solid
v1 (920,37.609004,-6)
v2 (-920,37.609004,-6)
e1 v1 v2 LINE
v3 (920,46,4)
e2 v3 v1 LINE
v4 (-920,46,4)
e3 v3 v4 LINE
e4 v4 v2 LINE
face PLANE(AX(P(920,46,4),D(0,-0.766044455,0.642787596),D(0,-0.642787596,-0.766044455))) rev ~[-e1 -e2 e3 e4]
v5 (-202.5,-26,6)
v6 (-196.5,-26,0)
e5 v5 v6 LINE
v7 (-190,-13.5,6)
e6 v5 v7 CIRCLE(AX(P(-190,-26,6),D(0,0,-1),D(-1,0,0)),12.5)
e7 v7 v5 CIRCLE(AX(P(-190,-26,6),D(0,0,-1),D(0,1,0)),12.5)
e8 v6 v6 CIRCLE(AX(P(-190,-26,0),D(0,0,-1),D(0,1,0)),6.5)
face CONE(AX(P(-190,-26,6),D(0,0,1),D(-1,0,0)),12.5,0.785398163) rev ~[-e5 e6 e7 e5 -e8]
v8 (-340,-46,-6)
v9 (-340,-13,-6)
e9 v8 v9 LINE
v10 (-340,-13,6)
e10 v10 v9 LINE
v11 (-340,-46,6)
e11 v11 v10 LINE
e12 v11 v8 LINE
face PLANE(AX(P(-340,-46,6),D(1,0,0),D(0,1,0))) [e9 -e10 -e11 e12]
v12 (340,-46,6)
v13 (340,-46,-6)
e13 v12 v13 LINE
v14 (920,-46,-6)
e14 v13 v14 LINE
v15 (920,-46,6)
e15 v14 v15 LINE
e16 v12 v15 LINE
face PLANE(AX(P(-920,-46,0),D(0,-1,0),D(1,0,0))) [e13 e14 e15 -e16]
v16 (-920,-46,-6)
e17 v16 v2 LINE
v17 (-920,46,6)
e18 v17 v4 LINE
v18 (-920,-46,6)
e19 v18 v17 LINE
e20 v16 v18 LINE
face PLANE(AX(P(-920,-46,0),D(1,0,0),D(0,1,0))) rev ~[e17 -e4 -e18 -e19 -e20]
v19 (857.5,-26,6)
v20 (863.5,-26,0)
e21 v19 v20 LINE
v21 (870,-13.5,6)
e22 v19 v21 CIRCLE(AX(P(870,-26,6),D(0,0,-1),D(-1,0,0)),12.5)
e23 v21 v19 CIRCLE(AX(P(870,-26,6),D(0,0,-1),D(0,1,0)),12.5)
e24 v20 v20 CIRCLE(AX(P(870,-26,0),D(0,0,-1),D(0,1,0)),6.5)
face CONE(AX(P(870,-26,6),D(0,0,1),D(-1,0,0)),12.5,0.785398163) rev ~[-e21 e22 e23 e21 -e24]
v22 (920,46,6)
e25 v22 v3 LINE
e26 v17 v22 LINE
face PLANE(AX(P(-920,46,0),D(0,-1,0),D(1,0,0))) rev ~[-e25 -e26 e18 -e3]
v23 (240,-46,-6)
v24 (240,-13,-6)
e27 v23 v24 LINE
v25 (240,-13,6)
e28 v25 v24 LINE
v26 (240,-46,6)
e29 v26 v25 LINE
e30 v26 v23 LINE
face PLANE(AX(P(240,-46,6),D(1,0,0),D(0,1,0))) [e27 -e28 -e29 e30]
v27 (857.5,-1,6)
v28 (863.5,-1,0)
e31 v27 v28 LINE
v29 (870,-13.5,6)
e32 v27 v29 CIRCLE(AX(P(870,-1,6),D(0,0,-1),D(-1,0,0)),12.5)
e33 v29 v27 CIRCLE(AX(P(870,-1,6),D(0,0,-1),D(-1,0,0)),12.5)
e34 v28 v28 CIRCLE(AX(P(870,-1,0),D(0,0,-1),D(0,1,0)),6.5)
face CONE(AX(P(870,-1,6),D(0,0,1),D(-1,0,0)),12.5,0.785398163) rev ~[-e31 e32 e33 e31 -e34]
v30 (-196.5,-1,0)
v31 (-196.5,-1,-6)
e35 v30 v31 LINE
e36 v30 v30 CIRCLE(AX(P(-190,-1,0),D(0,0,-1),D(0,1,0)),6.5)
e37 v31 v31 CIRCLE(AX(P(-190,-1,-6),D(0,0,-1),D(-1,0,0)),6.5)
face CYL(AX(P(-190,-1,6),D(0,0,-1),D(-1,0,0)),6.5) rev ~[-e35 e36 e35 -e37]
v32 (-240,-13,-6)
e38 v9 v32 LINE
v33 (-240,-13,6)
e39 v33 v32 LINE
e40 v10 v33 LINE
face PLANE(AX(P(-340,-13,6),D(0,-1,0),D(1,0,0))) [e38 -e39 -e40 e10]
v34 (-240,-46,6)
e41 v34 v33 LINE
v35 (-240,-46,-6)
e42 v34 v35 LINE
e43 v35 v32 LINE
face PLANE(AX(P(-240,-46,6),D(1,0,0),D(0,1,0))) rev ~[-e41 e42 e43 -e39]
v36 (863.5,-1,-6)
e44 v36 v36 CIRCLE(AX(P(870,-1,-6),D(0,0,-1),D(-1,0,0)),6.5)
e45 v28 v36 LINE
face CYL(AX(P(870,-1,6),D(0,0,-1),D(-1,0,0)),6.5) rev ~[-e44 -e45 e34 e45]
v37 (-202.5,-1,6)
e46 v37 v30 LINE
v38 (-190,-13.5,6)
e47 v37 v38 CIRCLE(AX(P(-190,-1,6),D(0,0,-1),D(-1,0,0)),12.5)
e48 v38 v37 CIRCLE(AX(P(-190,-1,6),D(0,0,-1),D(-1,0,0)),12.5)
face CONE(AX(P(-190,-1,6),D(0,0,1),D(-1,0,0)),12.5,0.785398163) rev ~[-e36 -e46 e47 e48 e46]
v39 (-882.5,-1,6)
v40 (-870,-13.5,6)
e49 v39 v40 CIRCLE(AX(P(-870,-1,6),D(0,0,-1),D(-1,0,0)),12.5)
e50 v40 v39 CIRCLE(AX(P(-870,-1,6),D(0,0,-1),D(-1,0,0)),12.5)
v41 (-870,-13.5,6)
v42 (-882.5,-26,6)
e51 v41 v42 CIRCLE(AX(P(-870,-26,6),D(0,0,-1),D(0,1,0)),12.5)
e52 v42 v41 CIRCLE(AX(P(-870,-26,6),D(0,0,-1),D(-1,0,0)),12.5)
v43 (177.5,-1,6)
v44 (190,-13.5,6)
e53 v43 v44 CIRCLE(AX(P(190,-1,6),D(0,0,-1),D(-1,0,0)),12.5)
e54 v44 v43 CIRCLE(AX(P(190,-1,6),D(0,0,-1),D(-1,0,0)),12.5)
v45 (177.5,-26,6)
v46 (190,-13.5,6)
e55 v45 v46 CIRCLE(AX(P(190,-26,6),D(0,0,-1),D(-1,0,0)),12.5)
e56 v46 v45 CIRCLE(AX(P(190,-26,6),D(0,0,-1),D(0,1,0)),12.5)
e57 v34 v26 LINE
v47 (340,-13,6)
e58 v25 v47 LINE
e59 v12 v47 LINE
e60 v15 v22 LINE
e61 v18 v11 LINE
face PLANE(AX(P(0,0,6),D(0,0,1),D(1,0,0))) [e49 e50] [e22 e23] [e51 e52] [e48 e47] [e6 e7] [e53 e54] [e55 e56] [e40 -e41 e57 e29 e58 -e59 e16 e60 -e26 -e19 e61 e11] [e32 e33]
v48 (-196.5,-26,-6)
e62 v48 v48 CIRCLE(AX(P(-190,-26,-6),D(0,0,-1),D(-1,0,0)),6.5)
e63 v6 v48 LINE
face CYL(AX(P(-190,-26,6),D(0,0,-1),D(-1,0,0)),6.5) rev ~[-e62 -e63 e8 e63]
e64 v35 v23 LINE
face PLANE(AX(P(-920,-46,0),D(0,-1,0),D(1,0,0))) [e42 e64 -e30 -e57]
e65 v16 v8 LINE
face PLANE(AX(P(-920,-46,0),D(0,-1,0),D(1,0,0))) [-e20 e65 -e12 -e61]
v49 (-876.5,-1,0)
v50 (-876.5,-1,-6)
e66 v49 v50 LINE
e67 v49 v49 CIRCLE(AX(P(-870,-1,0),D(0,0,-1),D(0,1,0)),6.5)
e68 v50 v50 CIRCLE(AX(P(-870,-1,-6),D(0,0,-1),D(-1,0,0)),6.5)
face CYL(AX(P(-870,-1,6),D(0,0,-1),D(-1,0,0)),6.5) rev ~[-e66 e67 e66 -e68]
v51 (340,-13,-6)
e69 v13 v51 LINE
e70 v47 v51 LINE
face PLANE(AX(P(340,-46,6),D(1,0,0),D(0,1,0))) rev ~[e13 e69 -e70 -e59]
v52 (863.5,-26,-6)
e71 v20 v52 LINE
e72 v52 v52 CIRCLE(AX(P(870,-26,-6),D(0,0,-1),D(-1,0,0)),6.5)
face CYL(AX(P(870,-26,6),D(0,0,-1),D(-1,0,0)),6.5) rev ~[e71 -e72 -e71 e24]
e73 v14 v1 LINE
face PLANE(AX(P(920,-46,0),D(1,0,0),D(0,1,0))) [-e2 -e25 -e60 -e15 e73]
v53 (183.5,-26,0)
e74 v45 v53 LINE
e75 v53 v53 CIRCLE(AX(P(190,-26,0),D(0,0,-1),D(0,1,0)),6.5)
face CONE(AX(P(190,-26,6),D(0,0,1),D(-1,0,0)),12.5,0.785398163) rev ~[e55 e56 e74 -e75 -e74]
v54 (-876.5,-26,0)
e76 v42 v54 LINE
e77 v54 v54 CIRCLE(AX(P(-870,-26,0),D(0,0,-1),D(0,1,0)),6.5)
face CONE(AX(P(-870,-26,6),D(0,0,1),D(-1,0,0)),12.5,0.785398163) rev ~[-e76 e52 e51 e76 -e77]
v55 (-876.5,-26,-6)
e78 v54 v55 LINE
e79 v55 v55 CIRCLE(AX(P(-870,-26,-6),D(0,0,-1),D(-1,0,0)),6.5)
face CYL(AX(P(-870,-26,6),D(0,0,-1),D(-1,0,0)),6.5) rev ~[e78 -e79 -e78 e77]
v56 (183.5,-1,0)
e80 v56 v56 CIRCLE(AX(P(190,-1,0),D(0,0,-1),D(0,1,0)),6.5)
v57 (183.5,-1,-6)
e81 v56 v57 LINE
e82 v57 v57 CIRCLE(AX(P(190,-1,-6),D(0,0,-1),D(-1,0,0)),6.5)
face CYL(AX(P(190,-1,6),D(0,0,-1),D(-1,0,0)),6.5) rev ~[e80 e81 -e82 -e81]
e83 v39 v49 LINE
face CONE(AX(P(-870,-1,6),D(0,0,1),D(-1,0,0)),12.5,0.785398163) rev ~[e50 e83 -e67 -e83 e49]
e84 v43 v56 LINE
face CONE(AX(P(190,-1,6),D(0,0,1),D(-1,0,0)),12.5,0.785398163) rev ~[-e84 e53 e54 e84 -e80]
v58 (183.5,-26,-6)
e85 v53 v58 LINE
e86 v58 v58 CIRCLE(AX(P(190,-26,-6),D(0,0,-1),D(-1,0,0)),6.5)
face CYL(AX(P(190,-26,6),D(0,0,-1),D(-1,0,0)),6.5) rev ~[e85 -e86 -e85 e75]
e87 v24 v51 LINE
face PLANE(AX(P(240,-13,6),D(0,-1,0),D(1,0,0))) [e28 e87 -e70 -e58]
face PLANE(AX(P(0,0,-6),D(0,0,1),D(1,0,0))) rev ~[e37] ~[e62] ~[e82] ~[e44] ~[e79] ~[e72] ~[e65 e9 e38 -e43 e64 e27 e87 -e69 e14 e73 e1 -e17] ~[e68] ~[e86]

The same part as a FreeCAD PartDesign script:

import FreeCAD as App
import Part
import Sketcher

V = App.Vector
Q = App.Units.Quantity

doc = App.newDocument("Part")
body = doc.addObject("PartDesign::Body", "Body")

sketch1 = body.newObject("Sketcher::SketchObject", "Sketch")
sketch1.AttachmentSupport = (doc.getObject("XY_Plane"), [""])
sketch1.MapMode = "FlatFace"
sketch1.addGeometry([
    Part.LineSegment(V(-920, 46, 0), V(-920, -46, 0)),
    Part.LineSegment(V(-920, -46, 0), V(920, -46, 0)),
    Part.LineSegment(V(920, -46, 0), V(920, 46, 0)),
    Part.LineSegment(V(920, 46, 0), V(-920, 46, 0)),
], False)
sketch1.addConstraint([
    Sketcher.Constraint("Coincident", 0, 2, 1, 1),
    Sketcher.Constraint("Coincident", 1, 2, 2, 1),
    Sketcher.Constraint("Coincident", 2, 2, 3, 1),
    Sketcher.Constraint("Coincident", 3, 2, 0, 1),
    Sketcher.Constraint("Vertical", 0),
    Sketcher.Constraint("Horizontal", 1),
    Sketcher.Constraint("Vertical", 2),
    Sketcher.Constraint("Horizontal", 3),
    Sketcher.Constraint("Symmetric", 0, 2, 2, 2, -1, 1),
    Sketcher.Constraint("DistanceX", 1, 1, 1, 2, Q("1840 mm")),
    Sketcher.Constraint("DistanceY", 0, 2, 0, 1, Q("92 mm")),
])
pad1 = body.newObject("PartDesign::Pad", "Pad")
pad1.Profile = sketch1
pad1.Length = 12
pad1.Midplane = True

sketch2 = body.newObject("Sketcher::SketchObject", "Sketch001")
sketch2.AttachmentSupport = (doc.getObject("XY_Plane"), [""])
sketch2.MapMode = "FlatFace"
sketch2.AttachmentOffset = App.Placement(V(0, 0, 6), App.Rotation())
sketch2.addGeometry([
    Part.LineSegment(V(-340, -13, 0), V(-340, -46, 0)),
    Part.LineSegment(V(-340, -46, 0), V(-240, -46, 0)),
    Part.LineSegment(V(-240, -46, 0), V(-240, -13, 0)),
    Part.LineSegment(V(-240, -13, 0), V(-340, -13, 0)),
    Part.LineSegment(V(240, -13, 0), V(240, -46, 0)),
    Part.LineSegment(V(240, -46, 0), V(340, -46, 0)),
    Part.LineSegment(V(340, -46, 0), V(340, -13, 0)),
    Part.LineSegment(V(340, -13, 0), V(240, -13, 0)),
], False)
sketch2.addConstraint([
    Sketcher.Constraint("Coincident", 0, 2, 1, 1),
    Sketcher.Constraint("Coincident", 1, 2, 2, 1),
    Sketcher.Constraint("Coincident", 2, 2, 3, 1),
    Sketcher.Constraint("Coincident", 3, 2, 0, 1),
    Sketcher.Constraint("Coincident", 4, 2, 5, 1),
    Sketcher.Constraint("Coincident", 5, 2, 6, 1),
    Sketcher.Constraint("Coincident", 6, 2, 7, 1),
    Sketcher.Constraint("Coincident", 7, 2, 4, 1),
    Sketcher.Constraint("Vertical", 0),
    Sketcher.Constraint("Horizontal", 1),
    Sketcher.Constraint("Vertical", 2),
    Sketcher.Constraint("Horizontal", 3),
    Sketcher.Constraint("Vertical", 4),
    Sketcher.Constraint("Horizontal", 5),
    Sketcher.Constraint("Vertical", 6),
    Sketcher.Constraint("Horizontal", 7),
    Sketcher.Constraint("Symmetric", 1, 2, 4, 2, -2),
    Sketcher.Constraint("Symmetric", 3, 2, 6, 2, -2),
    Sketcher.Constraint("DistanceX", 1, 1, 1, 2, Q("100 mm")),
    Sketcher.Constraint("DistanceY", 0, 2, 0, 1, Q("33 mm")),
    Sketcher.Constraint("DistanceX", 0, 2, -1, 1, Q("340 mm")),
    Sketcher.Constraint("DistanceY", 0, 2, -1, 1, Q("46 mm")),
])
pocket1 = body.newObject("PartDesign::Pocket", "Pocket")
pocket1.Profile = sketch2
pocket1.Type = "ThroughAll"

sketch3 = body.newObject("Sketcher::SketchObject", "Sketch002")
sketch3.AttachmentSupport = (doc.getObject("YZ_Plane"), [""])
sketch3.MapMode = "FlatFace"
sketch3.AttachmentOffset = App.Placement(V(0, 0, 920), App.Rotation())
sketch3.addGeometry([
    Part.LineSegment(V(46, -6, 0), V(46, 4, 0)),
    Part.LineSegment(V(46, 4, 0), V(38, -6, 0)),
    Part.LineSegment(V(38, -6, 0), V(46, -6, 0)),
], False)
sketch3.addConstraint([
    Sketcher.Constraint("Coincident", 0, 2, 1, 1),
    Sketcher.Constraint("Coincident", 1, 2, 2, 1),
    Sketcher.Constraint("Coincident", 2, 2, 0, 1),
    Sketcher.Constraint("Vertical", 0),
    Sketcher.Constraint("Horizontal", 2),
    Sketcher.Constraint("DistanceY", 0, 1, 0, 2, Q("10 mm")),
    Sketcher.Constraint("Angle", 1, Q("-129.999999 deg")),
    Sketcher.Constraint("DistanceX", -1, 1, 0, 2, Q("46 mm")),
    Sketcher.Constraint("DistanceY", -1, 1, 0, 2, Q("4 mm")),
])
pocket2 = body.newObject("PartDesign::Pocket", "Pocket001")
pocket2.Profile = sketch3
pocket2.Type = "ThroughAll"

sketch4 = body.newObject("Sketcher::SketchObject", "Sketch003")
sketch4.AttachmentSupport = (doc.getObject("XY_Plane"), [""])
sketch4.MapMode = "FlatFace"
sketch4.AttachmentOffset = App.Placement(V(0, 0, 6), App.Rotation())
sketch4.addGeometry([
    Part.Circle(V(-870, -1, 0), V(0, 0, 1), 6),
    Part.Circle(V(-870, -26, 0), V(0, 0, 1), 6),
    Part.Circle(V(-190, -1, 0), V(0, 0, 1), 6),
    Part.Circle(V(-190, -26, 0), V(0, 0, 1), 6),
    Part.Circle(V(190, -26, 0), V(0, 0, 1), 6),
    Part.Circle(V(190, -1, 0), V(0, 0, 1), 6),
    Part.Circle(V(870, -1, 0), V(0, 0, 1), 6),
    Part.Circle(V(870, -26, 0), V(0, 0, 1), 6),
], False)
sketch4.addConstraint([
    Sketcher.Constraint("Equal", 0, 1),
    Sketcher.Constraint("Equal", 1, 2),
    Sketcher.Constraint("Equal", 2, 3),
    Sketcher.Constraint("Equal", 3, 4),
    Sketcher.Constraint("Equal", 4, 5),
    Sketcher.Constraint("Equal", 5, 6),
    Sketcher.Constraint("Equal", 6, 7),
    Sketcher.Constraint("Symmetric", 3, 3, 4, 3, -2),
    Sketcher.Constraint("Symmetric", 2, 3, 5, 3, -2),
    Sketcher.Constraint("Symmetric", 0, 3, 6, 3, -2),
    Sketcher.Constraint("Symmetric", 1, 3, 7, 3, -2),
    Sketcher.Constraint("Horizontal", 0, 3, 2, 3),
    Sketcher.Constraint("Horizontal", 1, 3, 3, 3),
    Sketcher.Constraint("Vertical", 0, 3, 1, 3),
    Sketcher.Constraint("Vertical", 2, 3, 3, 3),
    Sketcher.Constraint("Diameter", 0, Q("13 mm")),
    Sketcher.Constraint("DistanceX", 0, 3, -1, 1, Q("870 mm")),
    Sketcher.Constraint("DistanceY", 0, 3, -1, 1, Q("1 mm")),
    Sketcher.Constraint("DistanceY", 1, 3, -1, 1, Q("26 mm")),
    Sketcher.Constraint("DistanceX", 2, 3, -1, 1, Q("190 mm")),
])
doc.recompute()
hole = body.newObject("PartDesign::Hole", "Hole")
hole.Profile = sketch4
hole.ThreadType = "None"
hole.Diameter = 13
hole.DepthType = "ThroughAll"
hole.HoleCutType = "Countersink"
hole.HoleCutDiameter = 25
hole.HoleCutCountersinkAngle = 90

doc.recompute()
